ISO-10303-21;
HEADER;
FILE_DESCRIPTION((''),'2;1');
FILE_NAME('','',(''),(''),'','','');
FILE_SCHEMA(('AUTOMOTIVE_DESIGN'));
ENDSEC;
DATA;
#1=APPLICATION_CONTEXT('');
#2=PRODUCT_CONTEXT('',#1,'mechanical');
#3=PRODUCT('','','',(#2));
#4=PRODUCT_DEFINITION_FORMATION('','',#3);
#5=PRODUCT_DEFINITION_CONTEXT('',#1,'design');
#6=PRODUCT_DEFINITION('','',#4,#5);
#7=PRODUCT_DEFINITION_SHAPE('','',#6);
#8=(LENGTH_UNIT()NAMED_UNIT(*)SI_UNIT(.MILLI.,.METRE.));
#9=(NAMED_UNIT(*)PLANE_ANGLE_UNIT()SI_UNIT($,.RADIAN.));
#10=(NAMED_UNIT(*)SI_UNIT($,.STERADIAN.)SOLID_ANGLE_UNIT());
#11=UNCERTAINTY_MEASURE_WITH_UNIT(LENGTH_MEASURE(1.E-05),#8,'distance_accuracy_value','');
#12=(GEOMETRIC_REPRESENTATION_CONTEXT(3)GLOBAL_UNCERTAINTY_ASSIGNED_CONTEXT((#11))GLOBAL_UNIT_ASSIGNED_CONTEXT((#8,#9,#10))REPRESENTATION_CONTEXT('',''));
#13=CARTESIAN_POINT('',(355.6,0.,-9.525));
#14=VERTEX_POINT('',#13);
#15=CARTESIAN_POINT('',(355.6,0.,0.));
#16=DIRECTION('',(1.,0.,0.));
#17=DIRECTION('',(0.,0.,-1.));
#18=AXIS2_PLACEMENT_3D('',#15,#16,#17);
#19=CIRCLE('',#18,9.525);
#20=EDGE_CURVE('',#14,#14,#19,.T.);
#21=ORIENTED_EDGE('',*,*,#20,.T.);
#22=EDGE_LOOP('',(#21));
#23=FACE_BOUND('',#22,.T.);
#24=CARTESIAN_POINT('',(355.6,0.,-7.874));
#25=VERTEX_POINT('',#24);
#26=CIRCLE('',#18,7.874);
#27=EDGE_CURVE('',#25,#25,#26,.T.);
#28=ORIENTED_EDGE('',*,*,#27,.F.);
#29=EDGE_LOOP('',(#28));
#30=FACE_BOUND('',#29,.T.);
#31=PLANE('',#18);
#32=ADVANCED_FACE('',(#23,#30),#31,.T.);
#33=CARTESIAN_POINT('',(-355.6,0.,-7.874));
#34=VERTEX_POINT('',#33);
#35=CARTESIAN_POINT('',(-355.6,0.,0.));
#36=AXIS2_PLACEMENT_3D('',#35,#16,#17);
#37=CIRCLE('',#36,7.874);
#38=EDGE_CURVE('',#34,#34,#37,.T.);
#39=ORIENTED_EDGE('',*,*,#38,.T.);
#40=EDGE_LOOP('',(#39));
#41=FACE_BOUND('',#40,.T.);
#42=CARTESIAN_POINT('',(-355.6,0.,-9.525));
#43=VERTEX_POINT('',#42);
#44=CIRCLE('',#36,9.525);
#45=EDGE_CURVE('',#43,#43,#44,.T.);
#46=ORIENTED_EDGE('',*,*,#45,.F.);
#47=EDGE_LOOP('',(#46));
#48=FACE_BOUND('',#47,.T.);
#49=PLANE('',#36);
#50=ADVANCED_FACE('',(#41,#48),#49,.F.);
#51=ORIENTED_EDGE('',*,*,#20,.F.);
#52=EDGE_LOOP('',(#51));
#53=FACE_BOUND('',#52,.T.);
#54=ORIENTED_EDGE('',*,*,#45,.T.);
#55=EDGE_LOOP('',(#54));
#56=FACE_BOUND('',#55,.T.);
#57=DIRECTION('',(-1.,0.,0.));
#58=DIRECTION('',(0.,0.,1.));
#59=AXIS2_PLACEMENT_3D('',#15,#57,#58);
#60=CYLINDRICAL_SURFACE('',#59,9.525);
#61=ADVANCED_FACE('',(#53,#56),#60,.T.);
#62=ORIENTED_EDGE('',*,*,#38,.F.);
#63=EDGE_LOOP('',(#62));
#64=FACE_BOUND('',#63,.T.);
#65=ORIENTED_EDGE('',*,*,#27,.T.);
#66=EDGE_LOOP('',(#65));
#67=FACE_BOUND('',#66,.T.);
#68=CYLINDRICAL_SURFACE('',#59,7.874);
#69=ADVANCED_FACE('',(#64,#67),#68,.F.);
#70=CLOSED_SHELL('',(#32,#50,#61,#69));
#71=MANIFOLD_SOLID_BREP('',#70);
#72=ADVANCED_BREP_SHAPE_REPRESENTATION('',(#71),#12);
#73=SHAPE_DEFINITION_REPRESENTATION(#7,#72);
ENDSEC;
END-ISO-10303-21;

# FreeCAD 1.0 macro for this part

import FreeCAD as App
import Part
import Sketcher
Q = App.Units.Quantity

doc = App.newDocument("Part")
body = doc.addObject("PartDesign::Body", "Body")

# Sketch on YZ plane
sketch1 = body.newObject("Sketcher::SketchObject", "Sketch")
sketch1.AttachmentSupport = (doc.getObject("YZ_Plane"), [""])
sketch1.MapMode = "FlatFace"
sketch1.addGeometry([
    Part.Circle(App.Vector(0, 0, 0), App.Vector(0, 0, 1), 10),
    Part.Circle(App.Vector(0, 0, 0), App.Vector(0, 0, 1), 8),
], False)
sketch1.addConstraint([
    Sketcher.Constraint("Coincident", 0, 3, -1, 1),
    Sketcher.Constraint("Coincident", 1, 3, -1, 1),
    Sketcher.Constraint("Diameter", 0, Q("0.75 in")),
    Sketcher.Constraint("Diameter", 1, Q("0.62 in")),
])
pad1 = body.newObject("PartDesign::Pad", "Pad")
pad1.Profile = sketch1
pad1.Length = Q("28 in")
pad1.Midplane = True

doc.recompute()
